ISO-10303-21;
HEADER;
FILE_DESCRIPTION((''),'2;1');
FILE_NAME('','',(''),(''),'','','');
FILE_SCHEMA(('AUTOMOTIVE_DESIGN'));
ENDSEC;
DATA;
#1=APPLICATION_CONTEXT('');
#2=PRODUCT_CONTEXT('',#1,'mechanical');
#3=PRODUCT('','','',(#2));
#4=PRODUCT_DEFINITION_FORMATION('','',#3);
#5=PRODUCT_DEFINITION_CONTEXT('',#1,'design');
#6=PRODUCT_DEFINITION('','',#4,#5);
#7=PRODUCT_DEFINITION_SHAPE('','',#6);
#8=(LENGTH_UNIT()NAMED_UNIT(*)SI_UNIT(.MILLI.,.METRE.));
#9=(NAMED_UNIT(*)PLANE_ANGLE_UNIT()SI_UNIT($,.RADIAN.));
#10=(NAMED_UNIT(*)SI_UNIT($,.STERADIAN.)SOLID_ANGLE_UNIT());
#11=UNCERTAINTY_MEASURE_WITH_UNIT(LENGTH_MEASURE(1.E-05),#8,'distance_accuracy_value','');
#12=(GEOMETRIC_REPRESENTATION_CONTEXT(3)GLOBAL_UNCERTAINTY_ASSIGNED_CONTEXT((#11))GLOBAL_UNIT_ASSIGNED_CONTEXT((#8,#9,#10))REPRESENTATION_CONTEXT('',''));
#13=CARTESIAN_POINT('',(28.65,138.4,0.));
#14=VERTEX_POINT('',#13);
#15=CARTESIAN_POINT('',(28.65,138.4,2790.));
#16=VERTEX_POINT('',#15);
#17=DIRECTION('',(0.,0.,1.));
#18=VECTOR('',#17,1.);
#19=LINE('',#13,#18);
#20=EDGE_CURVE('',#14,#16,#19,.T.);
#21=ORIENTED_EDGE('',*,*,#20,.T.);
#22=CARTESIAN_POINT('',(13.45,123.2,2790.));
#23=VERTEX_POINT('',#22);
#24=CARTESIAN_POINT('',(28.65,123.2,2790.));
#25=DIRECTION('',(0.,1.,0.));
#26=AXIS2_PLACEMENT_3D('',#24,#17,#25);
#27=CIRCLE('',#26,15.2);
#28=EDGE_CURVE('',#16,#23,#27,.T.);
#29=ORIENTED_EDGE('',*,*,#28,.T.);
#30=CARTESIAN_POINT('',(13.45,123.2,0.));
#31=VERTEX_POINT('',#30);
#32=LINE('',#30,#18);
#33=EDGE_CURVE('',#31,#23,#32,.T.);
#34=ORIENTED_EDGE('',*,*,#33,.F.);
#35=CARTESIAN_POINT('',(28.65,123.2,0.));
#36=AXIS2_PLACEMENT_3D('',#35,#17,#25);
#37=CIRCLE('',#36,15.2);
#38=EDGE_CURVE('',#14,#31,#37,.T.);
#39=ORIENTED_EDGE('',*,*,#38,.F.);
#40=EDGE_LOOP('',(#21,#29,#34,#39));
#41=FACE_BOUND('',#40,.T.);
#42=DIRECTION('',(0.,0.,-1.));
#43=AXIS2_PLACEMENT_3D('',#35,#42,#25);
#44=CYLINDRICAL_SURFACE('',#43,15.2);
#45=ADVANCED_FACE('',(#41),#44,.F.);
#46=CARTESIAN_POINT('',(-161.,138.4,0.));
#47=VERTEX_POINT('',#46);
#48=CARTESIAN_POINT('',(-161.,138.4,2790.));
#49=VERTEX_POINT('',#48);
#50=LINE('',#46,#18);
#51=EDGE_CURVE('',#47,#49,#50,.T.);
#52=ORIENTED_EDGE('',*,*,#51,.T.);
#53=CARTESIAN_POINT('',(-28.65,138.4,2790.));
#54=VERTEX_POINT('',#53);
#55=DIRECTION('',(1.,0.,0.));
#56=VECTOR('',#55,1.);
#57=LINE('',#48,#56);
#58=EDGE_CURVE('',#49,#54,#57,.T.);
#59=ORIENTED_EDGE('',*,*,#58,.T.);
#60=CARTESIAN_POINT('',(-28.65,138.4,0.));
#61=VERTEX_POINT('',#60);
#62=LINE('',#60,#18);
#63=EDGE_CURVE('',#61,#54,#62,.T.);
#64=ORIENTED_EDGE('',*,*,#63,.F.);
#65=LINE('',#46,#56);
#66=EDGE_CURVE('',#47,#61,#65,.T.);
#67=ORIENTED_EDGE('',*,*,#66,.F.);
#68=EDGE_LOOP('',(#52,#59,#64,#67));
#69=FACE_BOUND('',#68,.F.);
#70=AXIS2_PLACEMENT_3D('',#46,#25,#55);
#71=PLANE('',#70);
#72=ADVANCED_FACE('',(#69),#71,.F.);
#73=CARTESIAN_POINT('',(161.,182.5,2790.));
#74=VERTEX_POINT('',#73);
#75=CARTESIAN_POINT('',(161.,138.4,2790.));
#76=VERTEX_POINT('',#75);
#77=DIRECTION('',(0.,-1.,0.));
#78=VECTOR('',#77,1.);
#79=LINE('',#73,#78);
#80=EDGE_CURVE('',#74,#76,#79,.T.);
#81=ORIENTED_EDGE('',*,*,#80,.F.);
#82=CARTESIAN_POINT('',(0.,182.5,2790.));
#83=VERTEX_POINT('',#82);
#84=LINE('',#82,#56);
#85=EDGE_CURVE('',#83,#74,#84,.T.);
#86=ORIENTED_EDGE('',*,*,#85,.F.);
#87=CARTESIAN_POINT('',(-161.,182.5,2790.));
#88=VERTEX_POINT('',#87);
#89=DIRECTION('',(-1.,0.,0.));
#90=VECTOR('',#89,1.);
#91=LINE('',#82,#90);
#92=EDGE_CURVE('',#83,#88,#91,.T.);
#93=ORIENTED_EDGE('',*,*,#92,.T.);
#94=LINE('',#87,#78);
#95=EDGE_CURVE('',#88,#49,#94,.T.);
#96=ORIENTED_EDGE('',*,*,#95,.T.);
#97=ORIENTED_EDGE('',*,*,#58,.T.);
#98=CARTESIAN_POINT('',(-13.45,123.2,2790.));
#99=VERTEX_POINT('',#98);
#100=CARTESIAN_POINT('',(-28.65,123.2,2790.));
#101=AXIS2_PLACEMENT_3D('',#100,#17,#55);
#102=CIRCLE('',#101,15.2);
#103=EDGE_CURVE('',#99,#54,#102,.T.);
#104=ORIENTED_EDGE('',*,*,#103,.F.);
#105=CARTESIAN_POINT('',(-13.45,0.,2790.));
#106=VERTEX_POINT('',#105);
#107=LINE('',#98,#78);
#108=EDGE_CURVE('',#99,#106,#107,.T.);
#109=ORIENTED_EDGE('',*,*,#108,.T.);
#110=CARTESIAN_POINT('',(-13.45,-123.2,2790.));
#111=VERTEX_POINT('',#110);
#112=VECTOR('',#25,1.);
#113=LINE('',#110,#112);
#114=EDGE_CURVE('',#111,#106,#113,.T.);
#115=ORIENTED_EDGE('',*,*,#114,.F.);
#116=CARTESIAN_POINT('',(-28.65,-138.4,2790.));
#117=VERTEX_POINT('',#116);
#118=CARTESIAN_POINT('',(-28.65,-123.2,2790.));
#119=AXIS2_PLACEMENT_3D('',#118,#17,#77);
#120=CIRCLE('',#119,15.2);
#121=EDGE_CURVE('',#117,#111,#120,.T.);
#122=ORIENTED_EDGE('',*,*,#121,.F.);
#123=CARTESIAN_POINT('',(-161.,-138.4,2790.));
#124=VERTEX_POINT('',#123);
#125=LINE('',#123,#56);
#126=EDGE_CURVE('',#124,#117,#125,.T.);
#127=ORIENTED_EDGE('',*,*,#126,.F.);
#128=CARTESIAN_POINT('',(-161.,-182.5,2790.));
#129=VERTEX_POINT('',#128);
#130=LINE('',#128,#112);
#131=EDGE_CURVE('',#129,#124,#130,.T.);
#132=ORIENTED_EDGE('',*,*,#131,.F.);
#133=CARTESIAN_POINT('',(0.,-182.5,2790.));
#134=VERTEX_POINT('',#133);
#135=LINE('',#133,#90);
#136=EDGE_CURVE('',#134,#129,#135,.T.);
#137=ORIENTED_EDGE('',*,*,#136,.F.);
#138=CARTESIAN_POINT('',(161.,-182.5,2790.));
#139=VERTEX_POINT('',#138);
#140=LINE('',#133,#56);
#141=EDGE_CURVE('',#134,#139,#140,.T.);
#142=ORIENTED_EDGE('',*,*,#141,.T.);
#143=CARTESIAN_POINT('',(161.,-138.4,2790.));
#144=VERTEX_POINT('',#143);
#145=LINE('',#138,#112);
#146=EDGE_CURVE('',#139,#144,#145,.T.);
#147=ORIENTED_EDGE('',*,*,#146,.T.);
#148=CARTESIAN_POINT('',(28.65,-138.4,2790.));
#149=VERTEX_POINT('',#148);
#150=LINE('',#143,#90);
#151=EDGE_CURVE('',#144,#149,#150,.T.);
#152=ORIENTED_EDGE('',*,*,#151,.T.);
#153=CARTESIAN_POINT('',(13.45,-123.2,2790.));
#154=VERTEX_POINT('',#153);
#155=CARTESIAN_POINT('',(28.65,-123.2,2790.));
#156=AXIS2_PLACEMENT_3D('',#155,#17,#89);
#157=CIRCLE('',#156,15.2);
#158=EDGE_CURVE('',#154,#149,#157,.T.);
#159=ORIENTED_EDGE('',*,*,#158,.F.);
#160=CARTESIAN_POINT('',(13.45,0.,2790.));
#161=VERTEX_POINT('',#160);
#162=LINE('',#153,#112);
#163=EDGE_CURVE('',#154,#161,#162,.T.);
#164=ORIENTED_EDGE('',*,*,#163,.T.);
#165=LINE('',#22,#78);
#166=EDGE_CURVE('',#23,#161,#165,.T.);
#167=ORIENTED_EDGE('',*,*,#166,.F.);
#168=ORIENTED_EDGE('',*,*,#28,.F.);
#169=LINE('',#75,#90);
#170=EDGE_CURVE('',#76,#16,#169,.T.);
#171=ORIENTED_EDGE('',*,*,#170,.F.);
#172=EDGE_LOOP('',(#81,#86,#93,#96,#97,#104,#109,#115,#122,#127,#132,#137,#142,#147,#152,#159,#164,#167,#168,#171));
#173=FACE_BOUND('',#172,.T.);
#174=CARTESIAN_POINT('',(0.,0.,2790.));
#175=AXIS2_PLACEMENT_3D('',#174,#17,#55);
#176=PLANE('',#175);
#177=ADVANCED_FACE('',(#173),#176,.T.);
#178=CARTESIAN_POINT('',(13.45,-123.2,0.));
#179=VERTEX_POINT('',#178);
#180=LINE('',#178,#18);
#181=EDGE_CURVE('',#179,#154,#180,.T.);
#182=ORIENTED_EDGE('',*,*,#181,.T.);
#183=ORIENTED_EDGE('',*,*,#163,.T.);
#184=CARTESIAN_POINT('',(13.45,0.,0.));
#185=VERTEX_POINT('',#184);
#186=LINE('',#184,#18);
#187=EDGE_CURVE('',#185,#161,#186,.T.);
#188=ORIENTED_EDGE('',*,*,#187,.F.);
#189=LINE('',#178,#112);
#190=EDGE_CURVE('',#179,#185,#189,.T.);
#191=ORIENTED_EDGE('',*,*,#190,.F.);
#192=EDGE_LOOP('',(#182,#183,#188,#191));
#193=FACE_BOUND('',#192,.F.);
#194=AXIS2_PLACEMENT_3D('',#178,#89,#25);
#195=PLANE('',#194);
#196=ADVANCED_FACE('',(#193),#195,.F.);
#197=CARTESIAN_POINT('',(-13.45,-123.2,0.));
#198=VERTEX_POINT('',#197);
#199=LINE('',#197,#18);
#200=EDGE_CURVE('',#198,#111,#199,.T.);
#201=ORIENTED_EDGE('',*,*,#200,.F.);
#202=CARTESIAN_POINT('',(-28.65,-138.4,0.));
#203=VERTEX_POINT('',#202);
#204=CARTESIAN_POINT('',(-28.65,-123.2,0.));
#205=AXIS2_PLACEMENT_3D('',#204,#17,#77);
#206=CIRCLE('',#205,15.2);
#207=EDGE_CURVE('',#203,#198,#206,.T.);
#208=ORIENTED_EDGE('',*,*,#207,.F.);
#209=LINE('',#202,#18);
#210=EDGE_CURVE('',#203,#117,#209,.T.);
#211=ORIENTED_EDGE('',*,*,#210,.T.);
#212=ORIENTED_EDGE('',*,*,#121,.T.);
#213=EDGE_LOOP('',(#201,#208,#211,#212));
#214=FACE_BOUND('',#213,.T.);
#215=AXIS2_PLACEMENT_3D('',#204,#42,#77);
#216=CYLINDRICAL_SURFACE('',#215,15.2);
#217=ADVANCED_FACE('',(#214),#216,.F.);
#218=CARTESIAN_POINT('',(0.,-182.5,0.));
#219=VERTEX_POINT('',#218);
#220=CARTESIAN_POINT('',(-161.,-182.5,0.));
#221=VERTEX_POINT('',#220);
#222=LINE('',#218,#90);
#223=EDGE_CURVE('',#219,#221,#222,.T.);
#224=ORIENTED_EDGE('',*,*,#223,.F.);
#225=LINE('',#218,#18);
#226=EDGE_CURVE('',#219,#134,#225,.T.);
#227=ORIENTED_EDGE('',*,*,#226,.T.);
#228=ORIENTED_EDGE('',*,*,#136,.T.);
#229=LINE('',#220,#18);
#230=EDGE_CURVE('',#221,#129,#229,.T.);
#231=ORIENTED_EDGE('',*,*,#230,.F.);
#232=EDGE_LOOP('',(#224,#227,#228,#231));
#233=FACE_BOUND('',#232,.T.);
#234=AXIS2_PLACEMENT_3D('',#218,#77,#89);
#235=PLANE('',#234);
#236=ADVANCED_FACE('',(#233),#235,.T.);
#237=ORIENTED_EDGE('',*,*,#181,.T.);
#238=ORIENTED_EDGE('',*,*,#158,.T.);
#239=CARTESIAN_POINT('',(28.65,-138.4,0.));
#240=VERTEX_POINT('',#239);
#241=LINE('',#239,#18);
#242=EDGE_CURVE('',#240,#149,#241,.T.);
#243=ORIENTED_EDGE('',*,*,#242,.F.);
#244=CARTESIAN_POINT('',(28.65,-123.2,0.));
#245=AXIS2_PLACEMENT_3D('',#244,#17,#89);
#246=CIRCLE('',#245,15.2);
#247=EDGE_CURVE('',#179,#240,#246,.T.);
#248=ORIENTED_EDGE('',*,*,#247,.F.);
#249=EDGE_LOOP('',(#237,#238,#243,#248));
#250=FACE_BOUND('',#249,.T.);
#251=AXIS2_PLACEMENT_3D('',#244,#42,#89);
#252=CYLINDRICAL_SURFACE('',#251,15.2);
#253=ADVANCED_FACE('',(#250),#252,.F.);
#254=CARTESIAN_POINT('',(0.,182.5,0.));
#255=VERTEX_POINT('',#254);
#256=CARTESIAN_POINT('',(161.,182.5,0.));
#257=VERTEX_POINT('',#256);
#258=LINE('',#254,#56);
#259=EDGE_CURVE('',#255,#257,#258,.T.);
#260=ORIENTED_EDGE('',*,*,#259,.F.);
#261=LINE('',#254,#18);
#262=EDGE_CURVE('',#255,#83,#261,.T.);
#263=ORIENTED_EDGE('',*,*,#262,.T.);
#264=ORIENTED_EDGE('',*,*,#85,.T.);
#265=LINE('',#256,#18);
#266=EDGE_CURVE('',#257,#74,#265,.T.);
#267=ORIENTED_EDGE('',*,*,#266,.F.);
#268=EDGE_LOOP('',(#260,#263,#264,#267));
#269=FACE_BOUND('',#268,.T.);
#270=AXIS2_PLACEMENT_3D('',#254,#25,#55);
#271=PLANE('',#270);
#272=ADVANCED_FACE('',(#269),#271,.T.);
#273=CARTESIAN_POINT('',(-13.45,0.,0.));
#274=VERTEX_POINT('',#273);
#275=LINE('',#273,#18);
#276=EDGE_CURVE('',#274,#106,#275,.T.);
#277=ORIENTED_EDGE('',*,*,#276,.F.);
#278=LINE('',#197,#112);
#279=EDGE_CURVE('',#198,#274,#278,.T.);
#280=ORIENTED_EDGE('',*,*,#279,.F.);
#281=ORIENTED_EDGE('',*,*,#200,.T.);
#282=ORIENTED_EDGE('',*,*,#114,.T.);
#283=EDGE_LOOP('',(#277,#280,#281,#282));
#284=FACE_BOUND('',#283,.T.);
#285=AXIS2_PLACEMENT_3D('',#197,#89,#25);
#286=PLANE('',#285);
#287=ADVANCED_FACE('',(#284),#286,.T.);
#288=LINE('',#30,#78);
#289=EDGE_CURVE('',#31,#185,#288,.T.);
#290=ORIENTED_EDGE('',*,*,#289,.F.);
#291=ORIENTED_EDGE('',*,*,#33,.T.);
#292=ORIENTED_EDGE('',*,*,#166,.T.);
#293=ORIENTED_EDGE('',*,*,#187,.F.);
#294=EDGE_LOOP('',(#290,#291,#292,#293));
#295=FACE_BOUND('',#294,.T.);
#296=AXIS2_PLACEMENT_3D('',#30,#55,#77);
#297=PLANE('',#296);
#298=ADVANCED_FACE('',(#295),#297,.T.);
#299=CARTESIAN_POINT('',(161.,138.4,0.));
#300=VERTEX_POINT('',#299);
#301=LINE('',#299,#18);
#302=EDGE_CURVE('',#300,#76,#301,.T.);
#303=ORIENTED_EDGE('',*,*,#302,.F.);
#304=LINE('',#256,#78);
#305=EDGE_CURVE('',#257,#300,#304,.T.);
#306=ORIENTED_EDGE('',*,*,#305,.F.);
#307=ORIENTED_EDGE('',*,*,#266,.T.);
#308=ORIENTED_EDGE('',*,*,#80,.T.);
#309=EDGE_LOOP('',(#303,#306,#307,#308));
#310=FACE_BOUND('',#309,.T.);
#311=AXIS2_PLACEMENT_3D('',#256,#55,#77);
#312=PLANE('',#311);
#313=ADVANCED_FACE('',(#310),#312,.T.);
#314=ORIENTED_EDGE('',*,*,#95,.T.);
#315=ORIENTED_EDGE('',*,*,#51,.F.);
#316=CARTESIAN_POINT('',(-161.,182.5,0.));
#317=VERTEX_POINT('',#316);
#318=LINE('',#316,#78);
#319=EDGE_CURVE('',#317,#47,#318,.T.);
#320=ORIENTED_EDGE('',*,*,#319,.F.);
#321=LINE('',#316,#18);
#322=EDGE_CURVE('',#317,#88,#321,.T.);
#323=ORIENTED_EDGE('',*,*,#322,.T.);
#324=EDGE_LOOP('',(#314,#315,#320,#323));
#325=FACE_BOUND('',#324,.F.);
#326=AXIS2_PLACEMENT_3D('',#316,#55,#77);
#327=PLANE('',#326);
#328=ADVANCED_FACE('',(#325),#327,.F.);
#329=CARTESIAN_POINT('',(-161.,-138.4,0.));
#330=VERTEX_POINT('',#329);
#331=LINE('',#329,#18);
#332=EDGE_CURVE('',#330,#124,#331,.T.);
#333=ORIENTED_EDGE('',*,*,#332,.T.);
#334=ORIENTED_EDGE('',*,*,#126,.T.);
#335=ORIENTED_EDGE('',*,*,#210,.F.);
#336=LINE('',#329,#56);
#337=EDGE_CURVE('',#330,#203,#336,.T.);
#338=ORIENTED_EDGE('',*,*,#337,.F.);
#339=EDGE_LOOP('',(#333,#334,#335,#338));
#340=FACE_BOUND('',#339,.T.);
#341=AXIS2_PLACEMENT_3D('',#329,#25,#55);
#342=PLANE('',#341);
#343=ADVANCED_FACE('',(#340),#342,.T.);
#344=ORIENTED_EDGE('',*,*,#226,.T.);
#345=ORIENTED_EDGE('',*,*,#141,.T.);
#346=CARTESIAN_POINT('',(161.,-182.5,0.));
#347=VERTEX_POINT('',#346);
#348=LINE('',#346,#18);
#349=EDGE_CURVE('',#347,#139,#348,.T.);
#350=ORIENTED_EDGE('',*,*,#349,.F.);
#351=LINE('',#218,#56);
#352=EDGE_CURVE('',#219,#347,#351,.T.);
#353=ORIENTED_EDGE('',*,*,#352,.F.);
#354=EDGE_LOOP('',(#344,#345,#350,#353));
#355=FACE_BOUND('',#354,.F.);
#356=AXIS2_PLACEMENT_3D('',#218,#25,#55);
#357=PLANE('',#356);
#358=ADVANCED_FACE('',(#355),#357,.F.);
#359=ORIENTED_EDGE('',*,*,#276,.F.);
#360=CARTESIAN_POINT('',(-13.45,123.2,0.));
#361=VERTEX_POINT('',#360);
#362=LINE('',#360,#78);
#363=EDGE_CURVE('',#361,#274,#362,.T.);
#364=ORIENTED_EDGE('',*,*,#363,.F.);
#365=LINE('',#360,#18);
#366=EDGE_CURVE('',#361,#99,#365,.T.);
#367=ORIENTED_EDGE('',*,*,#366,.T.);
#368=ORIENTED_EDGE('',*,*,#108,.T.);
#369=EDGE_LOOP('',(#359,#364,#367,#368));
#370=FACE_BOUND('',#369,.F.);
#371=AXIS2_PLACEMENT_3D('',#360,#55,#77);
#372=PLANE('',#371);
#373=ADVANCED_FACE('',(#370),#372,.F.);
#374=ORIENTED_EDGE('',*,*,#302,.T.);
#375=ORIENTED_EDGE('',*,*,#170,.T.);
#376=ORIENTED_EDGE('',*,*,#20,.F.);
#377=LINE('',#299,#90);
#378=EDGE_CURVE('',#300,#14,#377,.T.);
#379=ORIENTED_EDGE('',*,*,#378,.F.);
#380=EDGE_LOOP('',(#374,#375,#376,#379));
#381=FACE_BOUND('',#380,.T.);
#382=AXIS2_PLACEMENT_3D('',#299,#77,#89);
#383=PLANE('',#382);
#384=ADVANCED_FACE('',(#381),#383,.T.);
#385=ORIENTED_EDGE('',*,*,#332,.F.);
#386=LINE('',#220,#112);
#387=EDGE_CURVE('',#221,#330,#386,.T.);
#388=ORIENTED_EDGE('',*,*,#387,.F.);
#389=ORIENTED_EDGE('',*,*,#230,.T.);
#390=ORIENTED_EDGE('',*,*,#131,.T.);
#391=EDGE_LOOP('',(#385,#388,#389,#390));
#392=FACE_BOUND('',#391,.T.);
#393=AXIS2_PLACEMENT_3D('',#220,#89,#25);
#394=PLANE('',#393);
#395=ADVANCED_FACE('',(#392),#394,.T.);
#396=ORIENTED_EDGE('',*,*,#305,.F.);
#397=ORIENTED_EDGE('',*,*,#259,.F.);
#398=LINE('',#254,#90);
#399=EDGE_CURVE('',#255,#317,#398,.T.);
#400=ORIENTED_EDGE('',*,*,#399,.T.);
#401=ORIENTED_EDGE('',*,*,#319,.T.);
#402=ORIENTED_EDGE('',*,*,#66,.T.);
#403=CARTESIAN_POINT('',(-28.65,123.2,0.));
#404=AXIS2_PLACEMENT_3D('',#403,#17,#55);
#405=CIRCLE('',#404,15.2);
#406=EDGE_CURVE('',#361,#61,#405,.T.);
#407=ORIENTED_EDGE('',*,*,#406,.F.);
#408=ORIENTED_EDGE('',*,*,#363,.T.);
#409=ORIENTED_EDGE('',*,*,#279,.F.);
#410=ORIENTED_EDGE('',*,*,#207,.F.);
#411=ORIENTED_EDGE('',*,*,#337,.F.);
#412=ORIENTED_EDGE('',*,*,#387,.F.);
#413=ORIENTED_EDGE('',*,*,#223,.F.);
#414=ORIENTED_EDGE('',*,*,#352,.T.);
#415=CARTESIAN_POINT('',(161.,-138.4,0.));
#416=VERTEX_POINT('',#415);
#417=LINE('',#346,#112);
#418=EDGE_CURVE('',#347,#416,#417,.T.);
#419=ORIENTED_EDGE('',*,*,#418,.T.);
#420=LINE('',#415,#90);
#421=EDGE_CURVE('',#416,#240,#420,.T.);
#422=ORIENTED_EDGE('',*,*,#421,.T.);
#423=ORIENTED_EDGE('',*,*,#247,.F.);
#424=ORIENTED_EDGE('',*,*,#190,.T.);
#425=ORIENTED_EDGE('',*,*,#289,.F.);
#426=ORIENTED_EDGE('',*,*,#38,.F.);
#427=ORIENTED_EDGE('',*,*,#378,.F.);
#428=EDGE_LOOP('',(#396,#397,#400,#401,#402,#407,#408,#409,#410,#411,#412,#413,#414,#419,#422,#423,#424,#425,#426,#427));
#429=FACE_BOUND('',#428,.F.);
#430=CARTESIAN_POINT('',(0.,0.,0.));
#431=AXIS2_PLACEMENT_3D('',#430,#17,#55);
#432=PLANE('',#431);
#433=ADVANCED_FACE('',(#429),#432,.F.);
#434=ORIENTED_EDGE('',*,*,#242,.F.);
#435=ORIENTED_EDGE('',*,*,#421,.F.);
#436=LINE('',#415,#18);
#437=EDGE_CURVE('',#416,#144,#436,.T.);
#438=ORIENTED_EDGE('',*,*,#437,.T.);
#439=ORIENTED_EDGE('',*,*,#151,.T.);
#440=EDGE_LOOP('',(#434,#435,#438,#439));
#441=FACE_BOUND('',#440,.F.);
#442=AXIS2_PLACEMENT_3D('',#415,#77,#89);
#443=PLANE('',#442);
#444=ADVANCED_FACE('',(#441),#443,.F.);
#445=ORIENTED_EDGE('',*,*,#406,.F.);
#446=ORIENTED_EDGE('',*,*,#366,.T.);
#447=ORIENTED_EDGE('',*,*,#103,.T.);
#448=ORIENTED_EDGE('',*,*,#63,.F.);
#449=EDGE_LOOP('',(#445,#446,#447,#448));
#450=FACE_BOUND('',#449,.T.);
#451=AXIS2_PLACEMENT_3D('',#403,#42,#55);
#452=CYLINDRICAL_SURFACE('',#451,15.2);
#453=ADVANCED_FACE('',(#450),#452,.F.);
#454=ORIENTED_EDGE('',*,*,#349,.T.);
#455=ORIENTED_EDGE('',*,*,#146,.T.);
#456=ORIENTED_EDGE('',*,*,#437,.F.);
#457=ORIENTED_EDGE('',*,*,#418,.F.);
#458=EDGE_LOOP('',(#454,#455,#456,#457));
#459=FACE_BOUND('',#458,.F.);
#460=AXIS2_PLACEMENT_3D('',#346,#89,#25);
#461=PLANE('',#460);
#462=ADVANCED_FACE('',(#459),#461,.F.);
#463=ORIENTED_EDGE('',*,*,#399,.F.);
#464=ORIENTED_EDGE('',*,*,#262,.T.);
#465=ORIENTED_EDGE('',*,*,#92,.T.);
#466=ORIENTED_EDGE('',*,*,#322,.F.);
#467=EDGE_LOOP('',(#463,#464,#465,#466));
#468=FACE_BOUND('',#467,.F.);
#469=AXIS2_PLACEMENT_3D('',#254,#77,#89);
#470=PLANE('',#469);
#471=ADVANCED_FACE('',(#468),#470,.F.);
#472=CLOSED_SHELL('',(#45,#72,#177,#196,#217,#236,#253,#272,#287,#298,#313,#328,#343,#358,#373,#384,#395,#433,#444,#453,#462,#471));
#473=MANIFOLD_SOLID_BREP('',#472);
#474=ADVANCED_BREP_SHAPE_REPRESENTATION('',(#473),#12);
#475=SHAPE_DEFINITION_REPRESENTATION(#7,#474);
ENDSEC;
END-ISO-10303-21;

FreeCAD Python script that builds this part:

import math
import FreeCAD as App
import Part
import Sketcher
from FreeCAD import Vector

doc = App.newDocument("Part")
body = doc.addObject("PartDesign::Body", "Body")

sketch1 = body.newObject("Sketcher::SketchObject", "Sketch")
sketch1.AttachmentSupport = (doc.getObject("XY_Plane"), [""])
sketch1.MapMode = "FlatFace"
sketch1.addGeometry([
    Part.LineSegment(Vector(-161, -138, 0), Vector(-161, -182, 0)),
    Part.LineSegment(Vector(-161, -182, 0), Vector(161, -182, 0)),
    Part.LineSegment(Vector(161, -182, 0), Vector(161, -138, 0)),
    Part.LineSegment(Vector(161, -138, 0), Vector(29, -138, 0)),
    Part.ArcOfCircle(Part.Circle(Vector(29, -123, 0), Vector(0, 0, 1), 15), math.radians(180), math.radians(270)),
    Part.LineSegment(Vector(13, -123, 0), Vector(13, 123, 0)),
    Part.ArcOfCircle(Part.Circle(Vector(29, 123, 0), Vector(0, 0, 1), 15), math.radians(90), math.radians(180)),
    Part.LineSegment(Vector(29, 138, 0), Vector(161, 138, 0)),
    Part.LineSegment(Vector(161, 138, 0), Vector(161, 182, 0)),
    Part.LineSegment(Vector(161, 182, 0), Vector(-161, 182, 0)),
    Part.LineSegment(Vector(-161, 182, 0), Vector(-161, 138, 0)),
    Part.LineSegment(Vector(-161, 138, 0), Vector(-29, 138, 0)),
    Part.ArcOfCircle(Part.Circle(Vector(-29, 123, 0), Vector(0, 0, 1), 15), math.radians(0), math.radians(90)),
    Part.LineSegment(Vector(-13, 123, 0), Vector(-13, -123, 0)),
    Part.ArcOfCircle(Part.Circle(Vector(-29, -123, 0), Vector(0, 0, 1), 15), math.radians(-90), math.radians(0)),
    Part.LineSegment(Vector(-29, -138, 0), Vector(-161, -138, 0)),
], False)
sketch1.addConstraint([
    Sketcher.Constraint("Coincident", 0, 2, 1, 1),
    Sketcher.Constraint("Coincident", 1, 2, 2, 1),
    Sketcher.Constraint("Coincident", 2, 2, 3, 1),
    Sketcher.Constraint("Tangent", 3, 2, 4, 2),
    Sketcher.Constraint("Tangent", 4, 1, 5, 1),
    Sketcher.Constraint("Tangent", 5, 2, 6, 2),
    Sketcher.Constraint("Tangent", 6, 1, 7, 1),
    Sketcher.Constraint("Coincident", 7, 2, 8, 1),
    Sketcher.Constraint("Coincident", 8, 2, 9, 1),
    Sketcher.Constraint("Coincident", 9, 2, 10, 1),
    Sketcher.Constraint("Coincident", 10, 2, 11, 1),
    Sketcher.Constraint("Tangent", 11, 2, 12, 2),
    Sketcher.Constraint("Tangent", 12, 1, 13, 1),
    Sketcher.Constraint("Tangent", 13, 2, 14, 2),
    Sketcher.Constraint("Tangent", 14, 1, 15, 1),
    Sketcher.Constraint("Coincident", 15, 2, 0, 1),
    Sketcher.Constraint("Vertical", 0),
    Sketcher.Constraint("Horizontal", 1),
    Sketcher.Constraint("Vertical", 2),
    Sketcher.Constraint("Horizontal", 3),
    Sketcher.Constraint("Vertical", 5),
    Sketcher.Constraint("Horizontal", 7),
    Sketcher.Constraint("Vertical", 8),
    Sketcher.Constraint("Horizontal", 9),
    Sketcher.Constraint("Vertical", 10),
    Sketcher.Constraint("Horizontal", 11),
    Sketcher.Constraint("Vertical", 13),
    Sketcher.Constraint("Horizontal", 15),
    Sketcher.Constraint("Equal", 4, 6),
    Sketcher.Constraint("Equal", 6, 12),
    Sketcher.Constraint("Equal", 12, 14),
    Sketcher.Constraint("Symmetric", 4, 3, 12, 3, -1, 1),
    Sketcher.Constraint("Symmetric", 0, 2, 8, 2, -1, 1),
    Sketcher.Constraint("Symmetric", 7, 2, 10, 2, -2),
    Sketcher.Constraint("Symmetric", 2, 2, 15, 2, -2),
    Sketcher.Constraint("Radius", 4, 15.2),
    Sketcher.Constraint("DistanceY", 0, 2, 0, 1, 44.1),
    Sketcher.Constraint("DistanceX", 0, 2, -1, 1, 161.0),
    Sketcher.Constraint("DistanceY", 0, 2, -1, 1, 182.5),
    Sketcher.Constraint("DistanceX", -1, 1, 4, 1, 13.45),
])
pad1 = body.newObject("PartDesign::Pad", "Pad")
pad1.Profile = sketch1
pad1.Length = 2790

doc.recompute()
